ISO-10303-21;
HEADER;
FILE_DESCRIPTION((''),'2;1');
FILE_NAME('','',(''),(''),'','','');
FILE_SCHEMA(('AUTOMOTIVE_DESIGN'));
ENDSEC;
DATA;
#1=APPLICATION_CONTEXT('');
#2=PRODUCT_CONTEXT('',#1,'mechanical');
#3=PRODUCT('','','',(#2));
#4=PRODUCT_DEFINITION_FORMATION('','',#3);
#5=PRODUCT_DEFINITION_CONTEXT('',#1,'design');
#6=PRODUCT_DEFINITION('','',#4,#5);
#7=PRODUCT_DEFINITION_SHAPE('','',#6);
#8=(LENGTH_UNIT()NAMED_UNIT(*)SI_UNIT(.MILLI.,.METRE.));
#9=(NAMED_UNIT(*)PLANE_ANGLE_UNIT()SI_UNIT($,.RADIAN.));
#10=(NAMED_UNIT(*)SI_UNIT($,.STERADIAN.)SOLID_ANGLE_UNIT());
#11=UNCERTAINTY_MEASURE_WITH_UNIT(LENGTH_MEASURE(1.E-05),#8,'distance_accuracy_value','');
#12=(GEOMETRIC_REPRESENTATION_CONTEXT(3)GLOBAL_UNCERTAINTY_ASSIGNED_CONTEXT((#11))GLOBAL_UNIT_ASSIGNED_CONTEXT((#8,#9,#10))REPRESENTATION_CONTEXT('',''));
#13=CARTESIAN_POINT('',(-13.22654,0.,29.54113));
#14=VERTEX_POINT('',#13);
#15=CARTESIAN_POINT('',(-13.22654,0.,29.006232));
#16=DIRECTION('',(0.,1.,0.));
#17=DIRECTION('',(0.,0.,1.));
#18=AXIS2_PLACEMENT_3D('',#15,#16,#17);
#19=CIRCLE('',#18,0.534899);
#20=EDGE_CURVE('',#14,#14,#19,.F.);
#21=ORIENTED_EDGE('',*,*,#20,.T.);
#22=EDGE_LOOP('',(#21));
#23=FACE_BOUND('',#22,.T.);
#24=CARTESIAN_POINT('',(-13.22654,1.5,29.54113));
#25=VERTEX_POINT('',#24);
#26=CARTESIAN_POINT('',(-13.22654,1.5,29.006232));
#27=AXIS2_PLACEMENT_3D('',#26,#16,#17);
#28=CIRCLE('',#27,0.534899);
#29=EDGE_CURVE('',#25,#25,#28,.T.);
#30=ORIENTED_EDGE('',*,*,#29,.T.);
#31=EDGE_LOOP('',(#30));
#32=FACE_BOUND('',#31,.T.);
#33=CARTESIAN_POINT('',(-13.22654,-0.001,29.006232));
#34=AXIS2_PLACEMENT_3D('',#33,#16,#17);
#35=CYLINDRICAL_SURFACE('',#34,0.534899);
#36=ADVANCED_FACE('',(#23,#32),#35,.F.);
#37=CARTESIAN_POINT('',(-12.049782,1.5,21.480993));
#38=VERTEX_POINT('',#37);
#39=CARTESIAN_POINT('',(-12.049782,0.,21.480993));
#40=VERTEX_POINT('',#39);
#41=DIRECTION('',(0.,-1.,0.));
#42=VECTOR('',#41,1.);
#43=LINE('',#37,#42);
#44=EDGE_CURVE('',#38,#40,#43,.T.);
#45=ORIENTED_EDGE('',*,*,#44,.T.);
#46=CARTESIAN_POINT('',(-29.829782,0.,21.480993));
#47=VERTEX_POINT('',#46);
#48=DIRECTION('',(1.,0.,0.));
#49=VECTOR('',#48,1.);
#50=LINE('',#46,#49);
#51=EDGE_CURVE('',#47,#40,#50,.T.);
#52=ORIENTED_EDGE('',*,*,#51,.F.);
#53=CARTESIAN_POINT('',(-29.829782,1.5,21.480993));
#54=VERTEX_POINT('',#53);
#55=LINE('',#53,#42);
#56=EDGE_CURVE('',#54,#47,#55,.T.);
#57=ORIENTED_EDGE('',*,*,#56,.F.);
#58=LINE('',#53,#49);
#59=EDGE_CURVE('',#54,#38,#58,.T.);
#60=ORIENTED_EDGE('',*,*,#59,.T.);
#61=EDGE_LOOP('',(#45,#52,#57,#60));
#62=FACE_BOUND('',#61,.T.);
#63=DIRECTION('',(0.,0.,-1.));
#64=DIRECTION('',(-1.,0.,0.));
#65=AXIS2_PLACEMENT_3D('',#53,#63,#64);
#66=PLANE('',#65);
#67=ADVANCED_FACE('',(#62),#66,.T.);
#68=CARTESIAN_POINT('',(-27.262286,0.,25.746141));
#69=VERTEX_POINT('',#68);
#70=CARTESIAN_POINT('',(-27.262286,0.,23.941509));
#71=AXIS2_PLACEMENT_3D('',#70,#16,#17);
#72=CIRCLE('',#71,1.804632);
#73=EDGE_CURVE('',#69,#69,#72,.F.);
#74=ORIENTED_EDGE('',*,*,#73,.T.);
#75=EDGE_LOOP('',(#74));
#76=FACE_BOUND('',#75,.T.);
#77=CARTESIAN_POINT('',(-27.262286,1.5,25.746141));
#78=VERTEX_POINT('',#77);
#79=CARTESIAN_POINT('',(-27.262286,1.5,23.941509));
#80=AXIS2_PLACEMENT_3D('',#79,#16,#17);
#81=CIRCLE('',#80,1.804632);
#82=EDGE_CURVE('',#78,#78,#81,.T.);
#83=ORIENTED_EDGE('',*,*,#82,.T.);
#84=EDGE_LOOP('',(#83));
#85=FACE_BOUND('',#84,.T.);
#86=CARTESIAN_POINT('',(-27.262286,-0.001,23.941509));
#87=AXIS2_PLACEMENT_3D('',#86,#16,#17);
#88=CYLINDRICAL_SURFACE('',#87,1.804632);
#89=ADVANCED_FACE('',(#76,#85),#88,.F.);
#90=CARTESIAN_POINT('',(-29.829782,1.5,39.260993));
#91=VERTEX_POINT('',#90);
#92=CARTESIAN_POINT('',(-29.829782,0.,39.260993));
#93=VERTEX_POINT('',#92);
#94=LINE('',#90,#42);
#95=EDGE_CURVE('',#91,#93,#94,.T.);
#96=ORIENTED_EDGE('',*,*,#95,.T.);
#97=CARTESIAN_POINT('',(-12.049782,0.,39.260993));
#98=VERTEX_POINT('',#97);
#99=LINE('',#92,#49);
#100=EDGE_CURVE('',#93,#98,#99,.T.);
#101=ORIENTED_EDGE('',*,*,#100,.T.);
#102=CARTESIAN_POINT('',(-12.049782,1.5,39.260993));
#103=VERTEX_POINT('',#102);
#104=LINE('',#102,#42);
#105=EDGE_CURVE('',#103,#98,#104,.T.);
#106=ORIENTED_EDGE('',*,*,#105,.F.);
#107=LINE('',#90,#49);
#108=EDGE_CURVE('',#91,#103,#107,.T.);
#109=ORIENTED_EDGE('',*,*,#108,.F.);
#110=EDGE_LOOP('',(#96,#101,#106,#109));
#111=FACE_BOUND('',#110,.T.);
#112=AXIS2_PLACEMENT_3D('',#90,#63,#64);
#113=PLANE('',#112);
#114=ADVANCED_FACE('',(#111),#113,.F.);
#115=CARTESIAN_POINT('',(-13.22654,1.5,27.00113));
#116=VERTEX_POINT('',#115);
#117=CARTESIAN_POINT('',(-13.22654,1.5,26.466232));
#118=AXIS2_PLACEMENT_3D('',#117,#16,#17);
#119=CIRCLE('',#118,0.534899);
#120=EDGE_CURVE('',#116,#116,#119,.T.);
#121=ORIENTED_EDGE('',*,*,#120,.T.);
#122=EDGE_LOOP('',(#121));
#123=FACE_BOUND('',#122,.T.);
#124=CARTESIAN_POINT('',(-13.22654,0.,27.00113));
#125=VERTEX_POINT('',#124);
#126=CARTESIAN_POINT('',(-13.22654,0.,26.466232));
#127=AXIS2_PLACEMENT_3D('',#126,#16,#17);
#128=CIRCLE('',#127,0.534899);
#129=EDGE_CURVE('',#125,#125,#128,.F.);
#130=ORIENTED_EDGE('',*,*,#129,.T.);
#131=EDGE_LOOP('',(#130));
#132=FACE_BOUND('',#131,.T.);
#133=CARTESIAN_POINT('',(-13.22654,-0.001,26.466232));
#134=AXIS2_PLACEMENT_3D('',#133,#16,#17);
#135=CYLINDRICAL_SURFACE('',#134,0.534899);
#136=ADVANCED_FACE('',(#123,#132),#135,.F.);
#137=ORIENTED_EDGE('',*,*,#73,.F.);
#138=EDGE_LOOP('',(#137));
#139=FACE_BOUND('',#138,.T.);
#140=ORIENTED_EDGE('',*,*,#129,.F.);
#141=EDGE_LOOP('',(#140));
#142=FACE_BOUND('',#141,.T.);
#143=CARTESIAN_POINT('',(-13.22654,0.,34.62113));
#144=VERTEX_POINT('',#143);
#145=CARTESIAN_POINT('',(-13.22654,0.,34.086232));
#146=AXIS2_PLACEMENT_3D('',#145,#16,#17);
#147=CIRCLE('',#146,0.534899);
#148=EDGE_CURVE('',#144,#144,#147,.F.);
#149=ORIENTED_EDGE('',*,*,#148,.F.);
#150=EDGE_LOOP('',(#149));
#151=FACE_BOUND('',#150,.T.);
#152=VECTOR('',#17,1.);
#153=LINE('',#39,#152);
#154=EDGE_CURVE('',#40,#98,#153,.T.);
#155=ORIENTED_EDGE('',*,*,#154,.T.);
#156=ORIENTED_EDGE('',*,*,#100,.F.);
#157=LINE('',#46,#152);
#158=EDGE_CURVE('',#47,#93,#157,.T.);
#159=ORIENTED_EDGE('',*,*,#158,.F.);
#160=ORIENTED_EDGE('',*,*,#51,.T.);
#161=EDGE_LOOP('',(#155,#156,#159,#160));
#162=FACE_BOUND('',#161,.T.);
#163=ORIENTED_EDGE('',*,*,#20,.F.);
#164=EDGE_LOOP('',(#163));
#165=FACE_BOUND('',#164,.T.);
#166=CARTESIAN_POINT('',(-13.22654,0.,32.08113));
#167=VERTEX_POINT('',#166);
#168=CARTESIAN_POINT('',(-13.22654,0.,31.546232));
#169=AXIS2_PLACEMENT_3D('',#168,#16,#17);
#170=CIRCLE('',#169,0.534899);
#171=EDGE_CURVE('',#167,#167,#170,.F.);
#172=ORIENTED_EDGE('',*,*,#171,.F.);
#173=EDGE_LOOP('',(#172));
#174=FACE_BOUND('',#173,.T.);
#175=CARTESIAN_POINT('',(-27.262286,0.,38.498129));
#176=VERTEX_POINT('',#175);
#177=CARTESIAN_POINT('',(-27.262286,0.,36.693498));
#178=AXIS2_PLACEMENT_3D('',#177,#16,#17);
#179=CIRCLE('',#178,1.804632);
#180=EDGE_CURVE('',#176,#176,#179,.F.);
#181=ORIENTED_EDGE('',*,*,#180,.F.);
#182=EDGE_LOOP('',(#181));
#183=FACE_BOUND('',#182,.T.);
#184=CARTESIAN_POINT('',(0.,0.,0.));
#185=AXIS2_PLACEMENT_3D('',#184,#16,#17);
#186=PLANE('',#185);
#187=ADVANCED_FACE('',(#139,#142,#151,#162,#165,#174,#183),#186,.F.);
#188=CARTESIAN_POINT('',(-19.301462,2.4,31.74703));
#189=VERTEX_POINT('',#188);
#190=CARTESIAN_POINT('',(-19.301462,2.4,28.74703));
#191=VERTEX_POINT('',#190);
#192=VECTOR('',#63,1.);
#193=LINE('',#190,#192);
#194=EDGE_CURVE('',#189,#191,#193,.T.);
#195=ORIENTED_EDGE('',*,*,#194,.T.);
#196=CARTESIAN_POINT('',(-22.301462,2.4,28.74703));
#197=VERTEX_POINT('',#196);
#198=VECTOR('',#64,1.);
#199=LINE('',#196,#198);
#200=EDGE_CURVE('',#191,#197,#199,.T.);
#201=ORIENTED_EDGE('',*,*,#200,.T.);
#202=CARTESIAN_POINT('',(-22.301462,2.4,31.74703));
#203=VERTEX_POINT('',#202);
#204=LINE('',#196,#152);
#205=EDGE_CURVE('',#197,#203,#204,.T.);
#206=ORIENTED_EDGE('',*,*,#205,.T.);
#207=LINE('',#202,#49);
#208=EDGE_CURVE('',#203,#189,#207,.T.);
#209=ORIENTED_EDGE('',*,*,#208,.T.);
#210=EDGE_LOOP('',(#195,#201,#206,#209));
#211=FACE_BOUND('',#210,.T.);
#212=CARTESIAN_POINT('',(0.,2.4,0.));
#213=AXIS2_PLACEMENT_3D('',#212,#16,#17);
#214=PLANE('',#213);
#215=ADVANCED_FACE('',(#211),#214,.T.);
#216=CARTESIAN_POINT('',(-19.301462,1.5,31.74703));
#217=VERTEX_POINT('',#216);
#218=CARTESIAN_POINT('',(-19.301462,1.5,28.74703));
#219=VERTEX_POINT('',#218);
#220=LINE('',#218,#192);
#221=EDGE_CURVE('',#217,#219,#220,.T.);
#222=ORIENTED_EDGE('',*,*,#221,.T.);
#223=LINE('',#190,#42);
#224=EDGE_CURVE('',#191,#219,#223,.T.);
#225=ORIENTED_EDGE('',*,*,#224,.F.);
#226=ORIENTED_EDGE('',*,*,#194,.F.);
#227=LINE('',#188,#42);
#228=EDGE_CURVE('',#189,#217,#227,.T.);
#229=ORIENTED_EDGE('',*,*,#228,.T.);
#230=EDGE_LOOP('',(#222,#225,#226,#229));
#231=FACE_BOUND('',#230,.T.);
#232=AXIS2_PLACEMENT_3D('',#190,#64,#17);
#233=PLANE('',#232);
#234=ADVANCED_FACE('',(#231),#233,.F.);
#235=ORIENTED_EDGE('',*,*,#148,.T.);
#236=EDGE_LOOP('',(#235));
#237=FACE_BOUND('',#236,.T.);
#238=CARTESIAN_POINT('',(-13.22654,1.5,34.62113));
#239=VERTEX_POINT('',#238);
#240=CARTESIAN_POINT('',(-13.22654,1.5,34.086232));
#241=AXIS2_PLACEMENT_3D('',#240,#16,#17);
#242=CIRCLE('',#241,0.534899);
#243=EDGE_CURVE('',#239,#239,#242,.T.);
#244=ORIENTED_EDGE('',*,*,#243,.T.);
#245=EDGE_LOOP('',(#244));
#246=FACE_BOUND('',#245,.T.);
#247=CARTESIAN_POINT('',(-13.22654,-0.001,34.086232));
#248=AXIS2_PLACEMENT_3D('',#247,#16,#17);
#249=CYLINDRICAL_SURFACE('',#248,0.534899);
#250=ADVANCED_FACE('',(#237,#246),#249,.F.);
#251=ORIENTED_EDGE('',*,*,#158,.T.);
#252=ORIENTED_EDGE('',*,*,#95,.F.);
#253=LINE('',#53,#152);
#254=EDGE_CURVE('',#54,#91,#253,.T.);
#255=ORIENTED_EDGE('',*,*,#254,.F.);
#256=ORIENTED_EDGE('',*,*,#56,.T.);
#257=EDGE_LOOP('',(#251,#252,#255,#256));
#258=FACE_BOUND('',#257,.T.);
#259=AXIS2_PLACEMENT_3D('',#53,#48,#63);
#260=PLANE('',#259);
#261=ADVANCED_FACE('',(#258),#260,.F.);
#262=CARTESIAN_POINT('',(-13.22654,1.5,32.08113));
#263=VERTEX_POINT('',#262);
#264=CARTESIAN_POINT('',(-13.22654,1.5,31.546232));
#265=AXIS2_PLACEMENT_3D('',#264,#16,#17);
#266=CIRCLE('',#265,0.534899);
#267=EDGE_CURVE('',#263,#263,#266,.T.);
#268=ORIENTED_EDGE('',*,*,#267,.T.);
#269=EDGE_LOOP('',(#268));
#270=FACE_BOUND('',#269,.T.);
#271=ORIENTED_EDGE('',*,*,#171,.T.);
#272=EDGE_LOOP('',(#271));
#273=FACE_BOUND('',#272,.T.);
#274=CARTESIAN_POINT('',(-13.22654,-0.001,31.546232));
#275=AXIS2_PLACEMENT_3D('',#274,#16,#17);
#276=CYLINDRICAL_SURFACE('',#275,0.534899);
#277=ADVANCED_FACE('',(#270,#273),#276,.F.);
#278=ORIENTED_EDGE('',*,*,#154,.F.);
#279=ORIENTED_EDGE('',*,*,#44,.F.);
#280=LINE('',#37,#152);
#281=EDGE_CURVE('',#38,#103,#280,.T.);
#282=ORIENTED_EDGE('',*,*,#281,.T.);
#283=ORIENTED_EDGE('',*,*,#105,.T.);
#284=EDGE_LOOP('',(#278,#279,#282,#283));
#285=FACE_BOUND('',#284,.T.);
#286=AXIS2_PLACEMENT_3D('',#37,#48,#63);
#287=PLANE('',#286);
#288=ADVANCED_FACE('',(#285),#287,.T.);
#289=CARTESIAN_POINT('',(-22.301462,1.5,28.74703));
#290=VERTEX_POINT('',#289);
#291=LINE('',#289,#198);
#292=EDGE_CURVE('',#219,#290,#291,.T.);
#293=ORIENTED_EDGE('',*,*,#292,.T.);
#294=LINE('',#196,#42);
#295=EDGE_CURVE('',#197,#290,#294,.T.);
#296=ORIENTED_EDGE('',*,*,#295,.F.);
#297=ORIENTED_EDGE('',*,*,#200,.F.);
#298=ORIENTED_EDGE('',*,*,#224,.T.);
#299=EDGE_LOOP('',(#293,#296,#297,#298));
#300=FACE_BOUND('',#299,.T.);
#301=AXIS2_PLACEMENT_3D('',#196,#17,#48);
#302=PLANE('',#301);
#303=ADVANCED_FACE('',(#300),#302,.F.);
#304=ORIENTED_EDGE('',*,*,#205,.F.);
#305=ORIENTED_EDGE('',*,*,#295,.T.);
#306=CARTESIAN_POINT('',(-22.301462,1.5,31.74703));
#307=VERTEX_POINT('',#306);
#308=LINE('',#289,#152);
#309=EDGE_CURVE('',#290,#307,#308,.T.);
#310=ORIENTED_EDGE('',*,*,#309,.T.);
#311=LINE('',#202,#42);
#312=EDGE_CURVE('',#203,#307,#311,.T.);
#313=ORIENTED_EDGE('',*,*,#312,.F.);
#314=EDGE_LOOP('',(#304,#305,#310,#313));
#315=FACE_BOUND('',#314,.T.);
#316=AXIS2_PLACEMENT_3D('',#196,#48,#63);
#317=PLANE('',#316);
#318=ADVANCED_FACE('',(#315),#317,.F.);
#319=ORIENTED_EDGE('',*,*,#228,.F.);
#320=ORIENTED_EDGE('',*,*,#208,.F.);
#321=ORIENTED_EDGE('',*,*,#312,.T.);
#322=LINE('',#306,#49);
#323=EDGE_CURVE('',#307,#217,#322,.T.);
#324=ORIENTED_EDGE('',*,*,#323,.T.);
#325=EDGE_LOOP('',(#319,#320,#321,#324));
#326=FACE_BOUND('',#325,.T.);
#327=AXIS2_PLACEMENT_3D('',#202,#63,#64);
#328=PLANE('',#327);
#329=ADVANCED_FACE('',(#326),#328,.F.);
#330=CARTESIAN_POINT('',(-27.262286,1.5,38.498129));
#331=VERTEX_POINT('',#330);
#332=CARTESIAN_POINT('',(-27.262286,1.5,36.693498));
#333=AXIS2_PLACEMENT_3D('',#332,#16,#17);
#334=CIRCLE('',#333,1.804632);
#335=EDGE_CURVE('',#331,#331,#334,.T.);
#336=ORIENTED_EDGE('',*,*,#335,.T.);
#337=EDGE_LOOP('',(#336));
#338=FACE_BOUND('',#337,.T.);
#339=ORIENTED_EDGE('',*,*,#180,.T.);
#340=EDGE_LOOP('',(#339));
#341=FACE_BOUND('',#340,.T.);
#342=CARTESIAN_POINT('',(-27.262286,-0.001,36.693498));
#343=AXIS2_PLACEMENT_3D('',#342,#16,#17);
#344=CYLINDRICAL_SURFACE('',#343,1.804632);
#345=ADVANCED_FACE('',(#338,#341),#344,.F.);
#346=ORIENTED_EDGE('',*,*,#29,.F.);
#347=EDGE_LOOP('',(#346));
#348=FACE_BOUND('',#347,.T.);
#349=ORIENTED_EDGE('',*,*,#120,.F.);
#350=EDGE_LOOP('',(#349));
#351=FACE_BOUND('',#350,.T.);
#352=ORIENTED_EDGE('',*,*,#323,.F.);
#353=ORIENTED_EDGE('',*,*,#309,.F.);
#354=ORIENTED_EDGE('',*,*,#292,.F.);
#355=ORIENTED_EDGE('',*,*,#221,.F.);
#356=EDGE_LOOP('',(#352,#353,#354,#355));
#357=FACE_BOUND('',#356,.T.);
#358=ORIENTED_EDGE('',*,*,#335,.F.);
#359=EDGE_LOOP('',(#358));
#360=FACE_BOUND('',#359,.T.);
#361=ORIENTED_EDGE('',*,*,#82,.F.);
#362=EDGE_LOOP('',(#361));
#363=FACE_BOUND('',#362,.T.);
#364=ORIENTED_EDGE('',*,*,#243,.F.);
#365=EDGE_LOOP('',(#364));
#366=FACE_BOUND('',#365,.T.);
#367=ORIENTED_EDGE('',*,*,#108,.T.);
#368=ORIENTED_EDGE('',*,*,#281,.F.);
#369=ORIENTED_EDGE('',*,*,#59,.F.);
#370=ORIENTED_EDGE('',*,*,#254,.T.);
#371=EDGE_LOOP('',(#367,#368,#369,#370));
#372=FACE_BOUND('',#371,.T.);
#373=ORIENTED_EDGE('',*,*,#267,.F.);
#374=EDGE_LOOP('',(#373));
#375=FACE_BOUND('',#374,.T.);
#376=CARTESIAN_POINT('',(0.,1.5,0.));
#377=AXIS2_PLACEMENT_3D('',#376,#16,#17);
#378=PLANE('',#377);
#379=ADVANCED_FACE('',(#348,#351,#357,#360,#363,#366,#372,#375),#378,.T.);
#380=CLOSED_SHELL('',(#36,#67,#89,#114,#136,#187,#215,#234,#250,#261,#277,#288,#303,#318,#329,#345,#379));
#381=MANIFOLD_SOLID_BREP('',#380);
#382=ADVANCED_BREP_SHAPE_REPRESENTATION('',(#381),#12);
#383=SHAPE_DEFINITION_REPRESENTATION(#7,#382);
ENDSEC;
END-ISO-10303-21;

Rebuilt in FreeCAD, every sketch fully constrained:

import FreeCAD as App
import Part
import Sketcher


def add_polygon(sketch, points):
    """Adds a closed chain of lines whose ends are joined by coincident constraints."""
    first, n = sketch.GeometryCount, len(points)
    for a, b in zip(points, points[1:] + points[:1]):
        sketch.addGeometry(Part.LineSegment(App.Vector(*a, 0), App.Vector(*b, 0)), False)
    for i in range(n):
        sketch.addConstraint(Sketcher.Constraint("Coincident", first + i, 2, first + (i + 1) % n, 1))

doc = App.newDocument("Part")
body = doc.addObject("PartDesign::Body", "Body")

sketch1 = doc.addObject("Sketcher::SketchObject", "Sketch")
body.addObject(sketch1)
sketch1.AttachmentSupport = (doc.XZ_Plane, [""])
sketch1.MapMode = "FlatFace"
add_polygon(sketch1, [(-30, 21), (-30, 39), (-12, 39), (-12, 21)])
sketch1.addConstraint([
    Sketcher.Constraint("Vertical", 0),
    Sketcher.Constraint("Horizontal", 1),
    Sketcher.Constraint("Vertical", 2),
    Sketcher.Constraint("Horizontal", 3),
    Sketcher.Constraint("Equal", 3, 0),
    Sketcher.Constraint("DistanceX", 1, 1, 1, 2, 17.78),
    Sketcher.Constraint("DistanceX", 0, 2, -1, 1, 29.829782),
    Sketcher.Constraint("DistanceY", -1, 1, 0, 2, 39.260993),
])
pad1 = doc.addObject("PartDesign::Pad", "Pad")
body.addObject(pad1)
pad1.Profile = sketch1
pad1.Length = 1.5
pad1.Reversed = True

sketch2 = doc.addObject("Sketcher::SketchObject", "Sketch001")
body.addObject(sketch2)
sketch2.AttachmentSupport = (doc.XZ_Plane, [""])
sketch2.MapMode = "FlatFace"
sketch2.AttachmentOffset = App.Placement(App.Vector(0, 0, -1.5), App.Rotation())
sketch2.addGeometry(Part.Circle(App.Vector(-27.3, 23.9, 0), App.Vector(0, 0, 1), 1.8), False)
sketch2.addConstraint([
    Sketcher.Constraint("Diameter", 0, 3.609263),
    Sketcher.Constraint("DistanceY", -1, 1, 0, 3, 23.941509),
    Sketcher.Constraint("DistanceX", 0, 3, -1, 1, 27.262286),
])
pocket1 = doc.addObject("PartDesign::Pocket", "Pocket")
body.addObject(pocket1)
pocket1.Profile = sketch2
pocket1.Type = "UpToFirst"
pocket1.Reversed = True

sketch3 = doc.addObject("Sketcher::SketchObject", "Sketch002")
body.addObject(sketch3)
sketch3.AttachmentSupport = (doc.XZ_Plane, [""])
sketch3.MapMode = "FlatFace"
sketch3.AttachmentOffset = App.Placement(App.Vector(0, 0, -1.5), App.Rotation())
sketch3.addGeometry(Part.Circle(App.Vector(-27.3, 36.7, 0), App.Vector(0, 0, 1), 1.8), False)
sketch3.addConstraint([
    Sketcher.Constraint("Diameter", 0, 3.609263),
    Sketcher.Constraint("DistanceX", 0, 3, -1, 1, 27.262286),
    Sketcher.Constraint("DistanceY", -1, 1, 0, 3, 36.693498),
])
pocket2 = doc.addObject("PartDesign::Pocket", "Pocket001")
body.addObject(pocket2)
pocket2.Profile = sketch3
pocket2.Type = "UpToFirst"
pocket2.Reversed = True

sketch4 = doc.addObject("Sketcher::SketchObject", "Sketch003")
body.addObject(sketch4)
sketch4.AttachmentSupport = (doc.XZ_Plane, [""])
sketch4.MapMode = "FlatFace"
sketch4.AttachmentOffset = App.Placement(App.Vector(0, 0, -1.5), App.Rotation())
sketch4.addGeometry(Part.Circle(App.Vector(-13.2, 26.5, 0), App.Vector(0, 0, 1), 0.5), False)
sketch4.addConstraint([
    Sketcher.Constraint("Diameter", 0, 1.069798),
    Sketcher.Constraint("DistanceX", 0, 3, -1, 1, 13.22654),
    Sketcher.Constraint("DistanceY", -1, 1, 0, 3, 26.466232),
])
pocket3 = doc.addObject("PartDesign::Pocket", "Pocket002")
body.addObject(pocket3)
pocket3.Profile = sketch4
pocket3.Type = "UpToFirst"
pocket3.Reversed = True

sketch5 = doc.addObject("Sketcher::SketchObject", "Sketch004")
body.addObject(sketch5)
sketch5.AttachmentSupport = (doc.XZ_Plane, [""])
sketch5.MapMode = "FlatFace"
sketch5.AttachmentOffset = App.Placement(App.Vector(0, 0, -1.5), App.Rotation())
sketch5.addGeometry(Part.Circle(App.Vector(-13.2, 29, 0), App.Vector(0, 0, 1), 0.5), False)
sketch5.addConstraint([
    Sketcher.Constraint("Diameter", 0, 1.069798),
    Sketcher.Constraint("DistanceX", 0, 3, -1, 1, 13.22654),
    Sketcher.Constraint("DistanceY", -1, 1, 0, 3, 29.006232),
])
pocket4 = doc.addObject("PartDesign::Pocket", "Pocket003")
body.addObject(pocket4)
pocket4.Profile = sketch5
pocket4.Type = "UpToFirst"
pocket4.Reversed = True

sketch6 = doc.addObject("Sketcher::SketchObject", "Sketch005")
body.addObject(sketch6)
sketch6.AttachmentSupport = (doc.XZ_Plane, [""])
sketch6.MapMode = "FlatFace"
sketch6.AttachmentOffset = App.Placement(App.Vector(0, 0, -1.5), App.Rotation())
sketch6.addGeometry(Part.Circle(App.Vector(-13.2, 31.5, 0), App.Vector(0, 0, 1), 0.5), False)
sketch6.addConstraint([
    Sketcher.Constraint("Diameter", 0, 1.069798),
    Sketcher.Constraint("DistanceX", 0, 3, -1, 1, 13.22654),
    Sketcher.Constraint("DistanceY", -1, 1, 0, 3, 31.546232),
])
pocket5 = doc.addObject("PartDesign::Pocket", "Pocket004")
body.addObject(pocket5)
pocket5.Profile = sketch6
pocket5.Type = "UpToFirst"
pocket5.Reversed = True

sketch7 = doc.addObject("Sketcher::SketchObject", "Sketch006")
body.addObject(sketch7)
sketch7.AttachmentSupport = (doc.XZ_Plane, [""])
sketch7.MapMode = "FlatFace"
sketch7.AttachmentOffset = App.Placement(App.Vector(0, 0, -1.5), App.Rotation())
sketch7.addGeometry(Part.Circle(App.Vector(-13.2, 34.1, 0), App.Vector(0, 0, 1), 0.5), False)
sketch7.addConstraint([
    Sketcher.Constraint("Diameter", 0, 1.069798),
    Sketcher.Constraint("DistanceX", 0, 3, -1, 1, 13.22654),
    Sketcher.Constraint("DistanceY", -1, 1, 0, 3, 34.086232),
])
pocket6 = doc.addObject("PartDesign::Pocket", "Pocket005")
body.addObject(pocket6)
pocket6.Profile = sketch7
pocket6.Type = "UpToFirst"
pocket6.Reversed = True

sketch8 = doc.addObject("Sketcher::SketchObject", "Sketch007")
body.addObject(sketch8)
sketch8.AttachmentSupport = (doc.XZ_Plane, [""])
sketch8.MapMode = "FlatFace"
sketch8.AttachmentOffset = App.Placement(App.Vector(0, 0, -1.5), App.Rotation())
add_polygon(sketch8, [(-22.3, 28.7), (-22.3, 31.7), (-19.3, 31.7), (-19.3, 28.7)])
sketch8.addConstraint([
    Sketcher.Constraint("Vertical", 0),
    Sketcher.Constraint("Horizontal", 1),
    Sketcher.Constraint("Vertical", 2),
    Sketcher.Constraint("Horizontal", 3),
    Sketcher.Constraint("Equal", 3, 0),
    Sketcher.Constraint("DistanceX", 1, 1, 1, 2, 3.0),
    Sketcher.Constraint("DistanceY", -1, 1, 0, 2, 31.74703),
    Sketcher.Constraint("DistanceX", 0, 2, -1, 1, 22.301462),
])
pad2 = doc.addObject("PartDesign::Pad", "Pad001")
body.addObject(pad2)
pad2.Profile = sketch8
pad2.Length = 0.9
pad2.Reversed = True

doc.recompute()
